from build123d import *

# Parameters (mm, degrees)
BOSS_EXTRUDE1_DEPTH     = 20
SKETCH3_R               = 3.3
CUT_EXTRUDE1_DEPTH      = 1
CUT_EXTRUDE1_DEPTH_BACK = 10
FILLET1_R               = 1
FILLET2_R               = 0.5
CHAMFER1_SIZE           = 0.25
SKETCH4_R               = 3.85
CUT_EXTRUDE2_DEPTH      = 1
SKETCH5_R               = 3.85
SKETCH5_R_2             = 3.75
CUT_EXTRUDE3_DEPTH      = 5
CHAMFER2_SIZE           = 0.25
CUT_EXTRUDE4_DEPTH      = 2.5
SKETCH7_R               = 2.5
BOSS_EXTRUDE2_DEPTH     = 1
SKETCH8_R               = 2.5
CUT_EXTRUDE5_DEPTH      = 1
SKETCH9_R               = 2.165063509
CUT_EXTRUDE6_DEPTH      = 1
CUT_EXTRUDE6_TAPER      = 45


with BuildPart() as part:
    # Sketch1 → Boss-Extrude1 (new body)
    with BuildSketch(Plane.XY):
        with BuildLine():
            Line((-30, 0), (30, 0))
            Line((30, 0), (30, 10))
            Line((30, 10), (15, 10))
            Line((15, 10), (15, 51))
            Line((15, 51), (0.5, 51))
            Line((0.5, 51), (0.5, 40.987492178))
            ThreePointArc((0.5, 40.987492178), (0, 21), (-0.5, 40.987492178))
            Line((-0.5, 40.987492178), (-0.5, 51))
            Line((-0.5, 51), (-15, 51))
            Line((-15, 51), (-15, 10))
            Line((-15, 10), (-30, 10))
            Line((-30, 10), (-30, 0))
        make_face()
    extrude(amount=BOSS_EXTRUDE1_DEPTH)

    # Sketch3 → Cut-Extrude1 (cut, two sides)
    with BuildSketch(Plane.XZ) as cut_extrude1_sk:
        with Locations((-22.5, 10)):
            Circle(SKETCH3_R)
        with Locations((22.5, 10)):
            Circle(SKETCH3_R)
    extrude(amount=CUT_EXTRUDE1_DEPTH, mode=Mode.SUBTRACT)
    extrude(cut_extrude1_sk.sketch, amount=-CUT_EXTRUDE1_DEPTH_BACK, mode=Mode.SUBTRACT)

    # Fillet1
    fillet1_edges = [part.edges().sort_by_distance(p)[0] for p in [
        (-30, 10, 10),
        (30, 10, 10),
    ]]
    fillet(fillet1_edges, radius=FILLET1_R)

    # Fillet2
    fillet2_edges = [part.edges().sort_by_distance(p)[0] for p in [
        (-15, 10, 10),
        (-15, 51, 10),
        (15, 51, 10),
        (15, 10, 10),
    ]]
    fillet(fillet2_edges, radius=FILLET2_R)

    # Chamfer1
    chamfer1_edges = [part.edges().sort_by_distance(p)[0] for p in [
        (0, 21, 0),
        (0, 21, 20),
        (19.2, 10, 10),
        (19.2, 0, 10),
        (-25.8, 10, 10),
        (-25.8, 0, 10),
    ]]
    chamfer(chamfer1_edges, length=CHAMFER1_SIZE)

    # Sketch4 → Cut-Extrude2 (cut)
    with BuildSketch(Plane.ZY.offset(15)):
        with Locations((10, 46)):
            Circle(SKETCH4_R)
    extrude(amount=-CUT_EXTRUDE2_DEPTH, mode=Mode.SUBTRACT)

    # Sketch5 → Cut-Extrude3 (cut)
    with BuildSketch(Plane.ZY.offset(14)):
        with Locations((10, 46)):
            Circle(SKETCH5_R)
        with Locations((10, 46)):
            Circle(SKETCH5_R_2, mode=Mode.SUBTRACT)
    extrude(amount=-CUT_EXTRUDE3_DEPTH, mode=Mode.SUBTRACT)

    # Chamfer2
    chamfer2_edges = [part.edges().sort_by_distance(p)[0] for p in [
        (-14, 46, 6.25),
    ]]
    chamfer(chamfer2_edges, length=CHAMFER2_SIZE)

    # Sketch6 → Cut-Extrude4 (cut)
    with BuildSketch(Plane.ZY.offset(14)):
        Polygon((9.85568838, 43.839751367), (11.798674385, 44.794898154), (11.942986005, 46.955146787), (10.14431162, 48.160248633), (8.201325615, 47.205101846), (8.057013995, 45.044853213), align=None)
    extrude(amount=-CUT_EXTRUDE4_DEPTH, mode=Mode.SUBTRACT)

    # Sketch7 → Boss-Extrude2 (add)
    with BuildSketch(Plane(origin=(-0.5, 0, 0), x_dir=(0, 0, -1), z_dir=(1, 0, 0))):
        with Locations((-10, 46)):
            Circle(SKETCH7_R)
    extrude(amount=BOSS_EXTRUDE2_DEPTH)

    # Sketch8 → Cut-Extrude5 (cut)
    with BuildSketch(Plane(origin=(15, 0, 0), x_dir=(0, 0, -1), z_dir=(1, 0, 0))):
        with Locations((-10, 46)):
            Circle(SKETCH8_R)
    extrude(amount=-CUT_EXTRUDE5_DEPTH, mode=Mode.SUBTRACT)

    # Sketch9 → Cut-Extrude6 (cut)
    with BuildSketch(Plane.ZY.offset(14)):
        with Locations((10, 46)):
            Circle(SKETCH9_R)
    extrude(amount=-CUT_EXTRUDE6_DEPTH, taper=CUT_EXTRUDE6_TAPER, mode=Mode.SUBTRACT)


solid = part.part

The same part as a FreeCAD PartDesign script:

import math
import FreeCAD as App
import Part
import Sketcher

V = App.Vector
Q = App.Units.Quantity


def edges_at(feature, points):
    """Names of the edges that pass closest to the given points."""
    edges = feature.Shape.Edges
    near = lambda p: min(range(len(edges)), key=lambda i: edges[i].distToShape(Part.Vertex(*p))[0])
    return sorted({f"Edge{near(p) + 1}" for p in points})

doc = App.newDocument("Part")
body = doc.addObject("PartDesign::Body", "Body")

sketch1 = body.newObject("Sketcher::SketchObject", "Sketch")
sketch1.AttachmentSupport = (doc.getObject("XY_Plane"), [""])
sketch1.MapMode = "FlatFace"
sketch1.addGeometry(Part.LineSegment(V(-30, 0, 0), V(30, 0, 0)), False)
sketch1.addGeometry(Part.LineSegment(V(30, 0, 0), V(30, 10, 0)), False)
sketch1.addGeometry(Part.LineSegment(V(30, 10, 0), V(15, 10, 0)), False)
sketch1.addGeometry(Part.LineSegment(V(15, 10, 0), V(15, 51, 0)), False)
sketch1.addGeometry(Part.LineSegment(V(15, 51, 0), V(0.5, 51, 0)), False)
sketch1.addGeometry(Part.LineSegment(V(0.5, 51, 0), V(0.5, 40.987492, 0)), False)
sketch1.addGeometry(Part.ArcOfCircle(Part.Circle(V(0, 31, 0), V(0, 0, 1), 10), math.radians(92.865984), math.radians(447.134016)), False)
sketch1.addGeometry(Part.LineSegment(V(-0.5, 40.987492, 0), V(-0.5, 51, 0)), False)
sketch1.addGeometry(Part.LineSegment(V(-0.5, 51, 0), V(-15, 51, 0)), False)
sketch1.addGeometry(Part.LineSegment(V(-15, 51, 0), V(-15, 10, 0)), False)
sketch1.addGeometry(Part.LineSegment(V(-15, 10, 0), V(-30, 10, 0)), False)
sketch1.addGeometry(Part.LineSegment(V(-30, 10, 0), V(-30, 0, 0)), False)
sketch1.addConstraint(Sketcher.Constraint("Coincident", 0, 2, 1, 1))
sketch1.addConstraint(Sketcher.Constraint("Coincident", 1, 2, 2, 1))
sketch1.addConstraint(Sketcher.Constraint("Coincident", 2, 2, 3, 1))
sketch1.addConstraint(Sketcher.Constraint("Coincident", 3, 2, 4, 1))
sketch1.addConstraint(Sketcher.Constraint("Coincident", 4, 2, 5, 1))
sketch1.addConstraint(Sketcher.Constraint("Coincident", 5, 2, 6, 2))
sketch1.addConstraint(Sketcher.Constraint("Coincident", 6, 1, 7, 1))
sketch1.addConstraint(Sketcher.Constraint("Coincident", 7, 2, 8, 1))
sketch1.addConstraint(Sketcher.Constraint("Coincident", 8, 2, 9, 1))
sketch1.addConstraint(Sketcher.Constraint("Coincident", 9, 2, 10, 1))
sketch1.addConstraint(Sketcher.Constraint("Coincident", 10, 2, 11, 1))
sketch1.addConstraint(Sketcher.Constraint("Coincident", 11, 2, 0, 1))
sketch1.addConstraint(Sketcher.Constraint("Horizontal", 0))
sketch1.addConstraint(Sketcher.Constraint("Vertical", 1))
sketch1.addConstraint(Sketcher.Constraint("Horizontal", 2))
sketch1.addConstraint(Sketcher.Constraint("Vertical", 3))
sketch1.addConstraint(Sketcher.Constraint("Horizontal", 4))
sketch1.addConstraint(Sketcher.Constraint("Vertical", 5))
sketch1.addConstraint(Sketcher.Constraint("Vertical", 7))
sketch1.addConstraint(Sketcher.Constraint("Horizontal", 8))
sketch1.addConstraint(Sketcher.Constraint("Vertical", 9))
sketch1.addConstraint(Sketcher.Constraint("Horizontal", 10))
sketch1.addConstraint(Sketcher.Constraint("Vertical", 11))
sketch1.addConstraint(Sketcher.Constraint("Symmetric", 0, 2, 11, 2, -1, 1))
sketch1.addConstraint(Sketcher.Constraint("Symmetric", 5, 2, 6, 1, -2))
sketch1.addConstraint(Sketcher.Constraint("Symmetric", 3, 2, 8, 2, -2))
sketch1.addConstraint(Sketcher.Constraint("Horizontal", 2, 2, 9, 2))
sketch1.addConstraint(Sketcher.Constraint("Radius", 6, Q("10 mm")))
sketch1.addConstraint(Sketcher.Constraint("DistanceX", 0, 1, 0, 2, Q("60 mm")))
sketch1.addConstraint(Sketcher.Constraint("DistanceX", 2, 2, 2, 1, Q("15 mm")))
sketch1.addConstraint(Sketcher.Constraint("DistanceY", 1, 1, 1, 2, Q("10 mm")))
sketch1.addConstraint(Sketcher.Constraint("DistanceY", 3, 1, 3, 2, Q("41 mm")))
sketch1.addConstraint(Sketcher.Constraint("DistanceX", 4, 2, 4, 1, Q("14.5 mm")))
sketch1.addConstraint(Sketcher.Constraint("DistanceY", -1, 1, 6, 3, Q("31 mm")))
pad1 = body.newObject("PartDesign::Pad", "Pad")
pad1.Profile = sketch1
pad1.Length = 20

sketch2 = body.newObject("Sketcher::SketchObject", "Sketch001")
sketch2.AttachmentSupport = (doc.getObject("XZ_Plane"), [""])
sketch2.MapMode = "FlatFace"
sketch2.addGeometry(Part.Circle(V(-22.5, 10, 0), V(0, 0, 1), 3.3), False)
sketch2.addGeometry(Part.Circle(V(22.5, 10, 0), V(0, 0, 1), 3.3), False)
sketch2.addConstraint(Sketcher.Constraint("Equal", 0, 1))
sketch2.addConstraint(Sketcher.Constraint("Symmetric", 0, 3, 1, 3, -2))
sketch2.addConstraint(Sketcher.Constraint("Diameter", 0, Q("6.6 mm")))
sketch2.addConstraint(Sketcher.Constraint("DistanceY", -1, 1, 0, 3, Q("10 mm")))
sketch2.addConstraint(Sketcher.Constraint("DistanceX", 0, 3, 1, 3, Q("45 mm")))
pocket1 = body.newObject("PartDesign::Pocket", "Pocket")
pocket1.Profile = sketch2
pocket1.Type = "ThroughAll"
pocket1.Midplane = True
doc.recompute()

fillet = body.newObject("PartDesign::Fillet", "Fillet")
fillet.Base = (pocket1, edges_at(pocket1, [(-30, 10, 10), (30, 10, 10)]))
fillet.Radius = 1
doc.recompute()

fillet2 = body.newObject("PartDesign::Fillet", "Fillet001")
fillet2.Base = (fillet, edges_at(fillet, [
    (-15, 10, 10),
    (-15, 51, 10),
    (15, 51, 10),
    (15, 10, 10),
]))
fillet2.Radius = 0.5
doc.recompute()

chamfer = body.newObject("PartDesign::Chamfer", "Chamfer")
chamfer.Base = (fillet2, edges_at(fillet2, [
    (0, 21, 0),
    (0, 21, 20),
    (19.2, 10, 10),
    (19.2, 0, 10),
    (-25.8, 10, 10),
    (-25.8, 0, 10),
]))
chamfer.Size = 0.25

sketch3 = body.newObject("Sketcher::SketchObject", "Sketch002")
sketch3.AttachmentSupport = (doc.getObject("YZ_Plane"), [""])
sketch3.MapMode = "FlatFace"
sketch3.AttachmentOffset = App.Placement(V(0, 0, -15), App.Rotation())
sketch3.addGeometry(Part.Circle(V(46, 10, 0), V(0, 0, 1), 3.85), False)
sketch3.addConstraint(Sketcher.Constraint("Diameter", 0, Q("7.7 mm")))
sketch3.addConstraint(Sketcher.Constraint("DistanceX", -1, 1, 0, 3, Q("46 mm")))
sketch3.addConstraint(Sketcher.Constraint("DistanceY", -1, 1, 0, 3, Q("10 mm")))
pocket2 = body.newObject("PartDesign::Pocket", "Pocket001")
pocket2.Profile = sketch3
pocket2.Length = 1
pocket2.Reversed = True

sketch4 = body.newObject("Sketcher::SketchObject", "Sketch003")
sketch4.AttachmentSupport = (doc.getObject("YZ_Plane"), [""])
sketch4.MapMode = "FlatFace"
sketch4.AttachmentOffset = App.Placement(V(0, 0, -14), App.Rotation())
sketch4.addGeometry(Part.Circle(V(46, 10, 0), V(0, 0, 1), 3.85), False)
sketch4.addGeometry(Part.Circle(V(46, 10, 0), V(0, 0, 1), 3.75), False)
sketch4.addConstraint(Sketcher.Constraint("Coincident", 1, 3, 0, 3))
sketch4.addConstraint(Sketcher.Constraint("Diameter", 0, Q("7.7 mm")))
sketch4.addConstraint(Sketcher.Constraint("Diameter", 1, Q("7.5 mm")))
sketch4.addConstraint(Sketcher.Constraint("DistanceX", -1, 1, 0, 3, Q("46 mm")))
sketch4.addConstraint(Sketcher.Constraint("DistanceY", -1, 1, 0, 3, Q("10 mm")))
pocket3 = body.newObject("PartDesign::Pocket", "Pocket002")
pocket3.Profile = sketch4
pocket3.Length = 5
pocket3.Reversed = True
doc.recompute()

chamfer2 = body.newObject("PartDesign::Chamfer", "Chamfer001")
chamfer2.Base = (pocket3, edges_at(pocket3, [(-14, 46, 6.25)]))
chamfer2.Size = 0.25

sketch5 = body.newObject("Sketcher::SketchObject", "Sketch004")
sketch5.AttachmentSupport = (doc.getObject("YZ_Plane"), [""])
sketch5.MapMode = "FlatFace"
sketch5.AttachmentOffset = App.Placement(V(0, 0, -14), App.Rotation())
sketch5.addGeometry(Part.LineSegment(V(43.839751, 9.855688, 0), V(44.794898, 11.798674, 0)), False)
sketch5.addGeometry(Part.LineSegment(V(44.794898, 11.798674, 0), V(46.955147, 11.942986, 0)), False)
sketch5.addGeometry(Part.LineSegment(V(46.955147, 11.942986, 0), V(48.160249, 10.144312, 0)), False)
sketch5.addGeometry(Part.LineSegment(V(48.160249, 10.144312, 0), V(47.205102, 8.201326, 0)), False)
sketch5.addGeometry(Part.LineSegment(V(47.205102, 8.201326, 0), V(45.044853, 8.057014, 0)), False)
sketch5.addGeometry(Part.LineSegment(V(45.044853, 8.057014, 0), V(43.839751, 9.855688, 0)), False)
sketch5.addConstraint(Sketcher.Constraint("Coincident", 0, 2, 1, 1))
sketch5.addConstraint(Sketcher.Constraint("Coincident", 1, 2, 2, 1))
sketch5.addConstraint(Sketcher.Constraint("Coincident", 2, 2, 3, 1))
sketch5.addConstraint(Sketcher.Constraint("Coincident", 3, 2, 4, 1))
sketch5.addConstraint(Sketcher.Constraint("Coincident", 4, 2, 5, 1))
sketch5.addConstraint(Sketcher.Constraint("Coincident", 5, 2, 0, 1))
sketch5.addConstraint(Sketcher.Constraint("Parallel", 0, 3))
sketch5.addConstraint(Sketcher.Constraint("Parallel", 1, 4))
sketch5.addConstraint(Sketcher.Constraint("Parallel", 2, 5))
sketch5.addConstraint(Sketcher.Constraint("Equal", 0, 1))
sketch5.addConstraint(Sketcher.Constraint("Equal", 1, 2))
sketch5.addConstraint(Sketcher.Constraint("Equal", 2, 3))
sketch5.addConstraint(Sketcher.Constraint("DistanceX", -1, 1, 0, 2, Q("44.794898 mm")))
sketch5.addConstraint(Sketcher.Constraint("DistanceX", -1, 1, 3, 2, Q("47.205102 mm")))
sketch5.addConstraint(Sketcher.Constraint("DistanceX", 1, 2, 2, 2, Q("1.205102 mm")))
sketch5.addConstraint(Sketcher.Constraint("DistanceX", -1, 1, 2, 2, Q("48.160249 mm")))
sketch5.addConstraint(Sketcher.Constraint("DistanceY", -1, 1, 2, 2, Q("10.144312 mm")))
sketch5.addConstraint(Sketcher.Constraint("DistanceY", -1, 1, 5, 2, Q("9.855688 mm")))
pocket4 = body.newObject("PartDesign::Pocket", "Pocket003")
pocket4.Profile = sketch5
pocket4.Length = 2.5
pocket4.Reversed = True

sketch6 = body.newObject("Sketcher::SketchObject", "Sketch005")
sketch6.AttachmentSupport = (doc.getObject("YZ_Plane"), [""])
sketch6.MapMode = "FlatFace"
sketch6.AttachmentOffset = App.Placement(V(0, 0, -0.5), App.Rotation())
sketch6.addGeometry(Part.Circle(V(46, 10, 0), V(0, 0, 1), 2.5), False)
sketch6.addConstraint(Sketcher.Constraint("Diameter", 0, Q("5 mm")))
sketch6.addConstraint(Sketcher.Constraint("DistanceX", -1, 1, 0, 3, Q("46 mm")))
sketch6.addConstraint(Sketcher.Constraint("DistanceY", -1, 1, 0, 3, Q("10 mm")))
pad2 = body.newObject("PartDesign::Pad", "Pad001")
pad2.Profile = sketch6
pad2.Length = 1

sketch7 = body.newObject("Sketcher::SketchObject", "Sketch006")
sketch7.AttachmentSupport = (doc.getObject("YZ_Plane"), [""])
sketch7.MapMode = "FlatFace"
sketch7.AttachmentOffset = App.Placement(V(0, 0, 15), App.Rotation())
sketch7.addGeometry(Part.Circle(V(46, 10, 0), V(0, 0, 1), 2.5), False)
sketch7.addConstraint(Sketcher.Constraint("Diameter", 0, Q("5 mm")))
sketch7.addConstraint(Sketcher.Constraint("DistanceX", -1, 1, 0, 3, Q("46 mm")))
sketch7.addConstraint(Sketcher.Constraint("DistanceY", -1, 1, 0, 3, Q("10 mm")))
pocket5 = body.newObject("PartDesign::Pocket", "Pocket004")
pocket5.Profile = sketch7
pocket5.Length = 1

sketch8 = body.newObject("Sketcher::SketchObject", "Sketch007")
sketch8.AttachmentSupport = (doc.getObject("YZ_Plane"), [""])
sketch8.MapMode = "FlatFace"
sketch8.AttachmentOffset = App.Placement(V(0, 0, -14), App.Rotation())
sketch8.addGeometry(Part.Circle(V(46, 10, 0), V(0, 0, 1), 2.165064), False)
sketch8.addConstraint(Sketcher.Constraint("DistanceX", -1, 1, 0, 3, Q("46 mm")))
sketch8.addConstraint(Sketcher.Constraint("DistanceY", -1, 1, 0, 3, Q("10 mm")))
sketch8.addConstraint(Sketcher.Constraint("Diameter", 0, Q("4.330127 mm")))
pocket6 = body.newObject("PartDesign::Pocket", "Pocket005")
pocket6.Profile = sketch8
pocket6.Length = 1
pocket6.Reversed = True
pocket6.TaperAngle = -45

doc.recompute()
